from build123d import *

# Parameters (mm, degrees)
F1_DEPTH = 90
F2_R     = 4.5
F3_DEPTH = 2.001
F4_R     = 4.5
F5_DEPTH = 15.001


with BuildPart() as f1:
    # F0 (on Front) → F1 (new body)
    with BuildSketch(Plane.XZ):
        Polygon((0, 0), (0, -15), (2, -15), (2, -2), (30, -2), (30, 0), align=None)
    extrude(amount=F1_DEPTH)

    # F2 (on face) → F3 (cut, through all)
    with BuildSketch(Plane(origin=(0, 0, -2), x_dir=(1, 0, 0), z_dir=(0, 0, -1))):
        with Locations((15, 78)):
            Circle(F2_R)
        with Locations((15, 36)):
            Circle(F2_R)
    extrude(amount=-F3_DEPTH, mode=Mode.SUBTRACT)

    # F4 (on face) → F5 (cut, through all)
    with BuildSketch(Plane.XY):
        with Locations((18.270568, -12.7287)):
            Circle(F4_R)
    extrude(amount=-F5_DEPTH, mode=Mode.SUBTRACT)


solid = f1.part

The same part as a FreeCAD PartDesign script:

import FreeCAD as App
import Part
import Sketcher

V = App.Vector

doc = App.newDocument("Part")
body = doc.addObject("PartDesign::Body", "Body")

# Sketch on XZ plane
sketch1 = body.newObject("Sketcher::SketchObject", "Sketch")
sketch1.AttachmentSupport = (doc.getObject("XZ_Plane"), [""])
sketch1.MapMode = "FlatFace"
sketch1.addGeometry(Part.LineSegment(V(0, 0, 0), V(0, -15, 0)), False)
sketch1.addGeometry(Part.LineSegment(V(0, -15, 0), V(2, -15, 0)), False)
sketch1.addGeometry(Part.LineSegment(V(2, -15, 0), V(2, -2, 0)), False)
sketch1.addGeometry(Part.LineSegment(V(2, -2, 0), V(30, -2, 0)), False)
sketch1.addGeometry(Part.LineSegment(V(30, -2, 0), V(30, 0, 0)), False)
sketch1.addGeometry(Part.LineSegment(V(30, 0, 0), V(0, 0, 0)), False)
sketch1.addConstraint(Sketcher.Constraint("Coincident", 0, 2, 1, 1))
sketch1.addConstraint(Sketcher.Constraint("Coincident", 1, 2, 2, 1))
sketch1.addConstraint(Sketcher.Constraint("Coincident", 2, 2, 3, 1))
sketch1.addConstraint(Sketcher.Constraint("Coincident", 3, 2, 4, 1))
sketch1.addConstraint(Sketcher.Constraint("Coincident", 4, 2, 5, 1))
sketch1.addConstraint(Sketcher.Constraint("Coincident", 5, 2, 0, 1))
sketch1.addConstraint(Sketcher.Constraint("Vertical", 0))
sketch1.addConstraint(Sketcher.Constraint("Horizontal", 1))
sketch1.addConstraint(Sketcher.Constraint("Vertical", 2))
sketch1.addConstraint(Sketcher.Constraint("Horizontal", 3))
sketch1.addConstraint(Sketcher.Constraint("Vertical", 4))
sketch1.addConstraint(Sketcher.Constraint("Horizontal", 5))
sketch1.addConstraint(Sketcher.Constraint("Coincident", 5, 2, -1, 1))
sketch1.addConstraint(Sketcher.Constraint("Equal", 1, 4))
sketch1.addConstraint(Sketcher.Constraint("DistanceX", 1, 1, 1, 2, 2.0))
sketch1.addConstraint(Sketcher.Constraint("DistanceX", 3, 1, 3, 2, 28.0))
sketch1.addConstraint(Sketcher.Constraint("DistanceY", 0, 2, 0, 1, 15.0))
pad1 = body.newObject("PartDesign::Pad", "Pad")
pad1.Profile = sketch1
pad1.Length = 90

# Sketch on XY plane
sketch2 = body.newObject("Sketcher::SketchObject", "Sketch001")
sketch2.AttachmentSupport = (doc.getObject("XY_Plane"), [""])
sketch2.MapMode = "FlatFace"
sketch2.AttachmentOffset = App.Placement(V(0, 0, -2), App.Rotation())
sketch2.addGeometry(Part.Circle(V(15, -78, 0), V(0, 0, 1), 4.5), False)
sketch2.addGeometry(Part.Circle(V(15, -36, 0), V(0, 0, 1), 4.5), False)
sketch2.addConstraint(Sketcher.Constraint("Equal", 0, 1))
sketch2.addConstraint(Sketcher.Constraint("Vertical", 0, 3, 1, 3))
sketch2.addConstraint(Sketcher.Constraint("Diameter", 0, 9.0))
sketch2.addConstraint(Sketcher.Constraint("DistanceX", -1, 1, 0, 3, 15.0))
sketch2.addConstraint(Sketcher.Constraint("DistanceY", 0, 3, -1, 1, 78.0))
sketch2.addConstraint(Sketcher.Constraint("DistanceY", 1, 3, -1, 1, 36.0))
pocket1 = body.newObject("PartDesign::Pocket", "Pocket")
pocket1.Profile = sketch2
pocket1.Type = "ThroughAll"
pocket1.Reversed = True

# Sketch on XY plane
sketch3 = body.newObject("Sketcher::SketchObject", "Sketch002")
sketch3.AttachmentSupport = (doc.getObject("XY_Plane"), [""])
sketch3.MapMode = "FlatFace"
sketch3.addGeometry(Part.Circle(V(18.3, -12.7, 0), V(0, 0, 1), 4.5), False)
sketch3.addConstraint(Sketcher.Constraint("Diameter", 0, 9.0))
sketch3.addConstraint(Sketcher.Constraint("DistanceY", 0, 3, -1, 1, 12.7287))
sketch3.addConstraint(Sketcher.Constraint("DistanceX", -1, 1, 0, 3, 18.270568))
pocket2 = body.newObject("PartDesign::Pocket", "Pocket001")
pocket2.Profile = sketch3
pocket2.Type = "ThroughAll"

doc.recompute()
